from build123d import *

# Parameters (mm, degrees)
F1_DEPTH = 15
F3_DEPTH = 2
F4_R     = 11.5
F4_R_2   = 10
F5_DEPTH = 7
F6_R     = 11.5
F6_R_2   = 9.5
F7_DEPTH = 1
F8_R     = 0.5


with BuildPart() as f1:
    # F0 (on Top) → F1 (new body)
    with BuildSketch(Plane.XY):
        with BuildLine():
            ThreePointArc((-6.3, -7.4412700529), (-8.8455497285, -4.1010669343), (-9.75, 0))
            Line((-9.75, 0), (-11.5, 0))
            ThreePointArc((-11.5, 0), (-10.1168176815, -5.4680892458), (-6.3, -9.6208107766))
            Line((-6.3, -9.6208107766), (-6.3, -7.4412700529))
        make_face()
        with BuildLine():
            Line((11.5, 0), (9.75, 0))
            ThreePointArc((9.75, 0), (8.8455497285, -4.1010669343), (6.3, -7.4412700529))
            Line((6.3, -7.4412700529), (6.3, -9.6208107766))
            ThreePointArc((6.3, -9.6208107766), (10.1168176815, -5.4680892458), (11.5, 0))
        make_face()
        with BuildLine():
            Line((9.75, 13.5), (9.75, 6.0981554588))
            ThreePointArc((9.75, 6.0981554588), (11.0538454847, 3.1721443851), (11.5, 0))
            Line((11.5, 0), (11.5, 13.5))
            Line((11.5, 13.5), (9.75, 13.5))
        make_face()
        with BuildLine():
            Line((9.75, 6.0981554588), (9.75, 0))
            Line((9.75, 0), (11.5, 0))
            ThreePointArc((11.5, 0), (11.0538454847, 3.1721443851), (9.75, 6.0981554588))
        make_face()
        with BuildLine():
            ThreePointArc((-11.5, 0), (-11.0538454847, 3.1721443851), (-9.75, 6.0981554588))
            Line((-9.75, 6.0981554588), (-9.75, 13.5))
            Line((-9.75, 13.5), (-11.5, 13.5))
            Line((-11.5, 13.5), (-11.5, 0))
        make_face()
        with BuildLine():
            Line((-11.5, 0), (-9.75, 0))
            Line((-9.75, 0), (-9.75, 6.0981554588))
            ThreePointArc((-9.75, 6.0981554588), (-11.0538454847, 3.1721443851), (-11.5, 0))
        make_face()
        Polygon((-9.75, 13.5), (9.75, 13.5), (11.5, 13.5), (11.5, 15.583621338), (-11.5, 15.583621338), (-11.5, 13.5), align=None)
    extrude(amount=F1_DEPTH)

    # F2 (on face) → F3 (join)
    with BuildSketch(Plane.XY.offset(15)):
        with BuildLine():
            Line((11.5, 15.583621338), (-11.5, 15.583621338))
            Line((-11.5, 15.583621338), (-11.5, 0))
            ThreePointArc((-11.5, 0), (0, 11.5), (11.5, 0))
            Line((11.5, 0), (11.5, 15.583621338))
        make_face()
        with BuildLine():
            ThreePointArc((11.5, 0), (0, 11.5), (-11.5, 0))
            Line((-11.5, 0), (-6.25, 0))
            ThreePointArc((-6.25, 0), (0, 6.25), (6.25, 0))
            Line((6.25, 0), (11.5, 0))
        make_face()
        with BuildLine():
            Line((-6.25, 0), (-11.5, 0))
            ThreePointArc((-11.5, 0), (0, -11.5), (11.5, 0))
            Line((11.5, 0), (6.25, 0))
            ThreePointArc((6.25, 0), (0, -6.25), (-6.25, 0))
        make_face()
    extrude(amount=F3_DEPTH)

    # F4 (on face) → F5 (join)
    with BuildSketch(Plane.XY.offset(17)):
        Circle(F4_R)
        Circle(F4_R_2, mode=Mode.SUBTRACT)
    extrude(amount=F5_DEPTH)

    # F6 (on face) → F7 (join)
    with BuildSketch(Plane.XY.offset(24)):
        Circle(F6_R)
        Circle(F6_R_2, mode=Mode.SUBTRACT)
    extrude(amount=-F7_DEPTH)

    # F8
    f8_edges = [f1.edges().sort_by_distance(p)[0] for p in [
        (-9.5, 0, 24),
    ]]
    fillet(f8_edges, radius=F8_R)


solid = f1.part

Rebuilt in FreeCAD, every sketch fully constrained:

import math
import FreeCAD as App
import Part
import Sketcher


def edges_at(feature, points):
    """Names of the edges that pass closest to the given points."""
    edges = feature.Shape.Edges
    near = lambda p: min(range(len(edges)), key=lambda i: edges[i].distToShape(Part.Vertex(*p))[0])
    return sorted({f"Edge{near(p) + 1}" for p in points})

doc = App.newDocument("Part")
body = doc.addObject("PartDesign::Body", "Body")

# Sketch on XY plane
sketch1 = doc.addObject("Sketcher::SketchObject", "Sketch")
body.addObject(sketch1)
sketch1.AttachmentSupport = (doc.XY_Plane, [""])
sketch1.MapMode = "FlatFace"
sketch1.addGeometry([
    Part.ArcOfCircle(Part.Circle(App.Vector(0, 0, 0), App.Vector(0, 0, 1), 9.8), math.radians(180), math.radians(230)),  # 0
    Part.LineSegment(App.Vector(-9.8, 0, 0), App.Vector(-9.8, 13.5, 0)),  # 1
    Part.LineSegment(App.Vector(-9.8, 13.5, 0), App.Vector(9.8, 13.5, 0)),  # 2
    Part.LineSegment(App.Vector(9.8, 13.5, 0), App.Vector(9.8, 0, 0)),  # 3
    Part.ArcOfCircle(Part.Circle(App.Vector(0, 0, 0), App.Vector(0, 0, 1), 9.8), math.radians(-50), math.radians(0)),  # 4
    Part.LineSegment(App.Vector(6.3, -7.4, 0), App.Vector(6.3, -9.6, 0)),  # 5
    Part.ArcOfCircle(Part.Circle(App.Vector(0, 0, 0), App.Vector(0, 0, 1), 11.5), math.radians(-57), math.radians(0)),  # 6
    Part.LineSegment(App.Vector(11.5, 0, 0), App.Vector(11.5, 15.6, 0)),  # 7
    Part.LineSegment(App.Vector(11.5, 15.6, 0), App.Vector(-11.5, 15.6, 0)),  # 8
    Part.LineSegment(App.Vector(-11.5, 15.6, 0), App.Vector(-11.5, 0, 0)),  # 9
    Part.ArcOfCircle(Part.Circle(App.Vector(0, 0, 0), App.Vector(0, 0, 1), 11.5), math.radians(180), math.radians(237)),  # 10
    Part.LineSegment(App.Vector(-6.3, -9.6, 0), App.Vector(-6.3, -7.4, 0)),  # 11
], False)
sketch1.addConstraint([
    Sketcher.Constraint("Tangent", 0, 1, 1, 1),
    Sketcher.Constraint("Coincident", 1, 2, 2, 1),
    Sketcher.Constraint("Coincident", 2, 2, 3, 1),
    Sketcher.Constraint("Tangent", 3, 2, 4, 2),
    Sketcher.Constraint("Coincident", 4, 1, 5, 1),
    Sketcher.Constraint("Coincident", 5, 2, 6, 1),
    Sketcher.Constraint("Tangent", 6, 2, 7, 1),
    Sketcher.Constraint("Coincident", 7, 2, 8, 1),
    Sketcher.Constraint("Coincident", 8, 2, 9, 1),
    Sketcher.Constraint("Tangent", 9, 2, 10, 1),
    Sketcher.Constraint("Coincident", 10, 2, 11, 1),
    Sketcher.Constraint("Coincident", 11, 2, 0, 2),
    Sketcher.Constraint("Vertical", 1),
    Sketcher.Constraint("Horizontal", 2),
    Sketcher.Constraint("Vertical", 3),
    Sketcher.Constraint("Vertical", 5),
    Sketcher.Constraint("Vertical", 7),
    Sketcher.Constraint("Horizontal", 8),
    Sketcher.Constraint("Vertical", 9),
    Sketcher.Constraint("Vertical", 11),
    Sketcher.Constraint("Coincident", 0, 3, -1, 1),
    Sketcher.Constraint("Coincident", 4, 3, -1, 1),
    Sketcher.Constraint("Coincident", 6, 3, -1, 1),
    Sketcher.Constraint("Coincident", 10, 3, -1, 1),
    Sketcher.Constraint("Equal", 0, 4),
    Sketcher.Constraint("Equal", 6, 10),
    Sketcher.Constraint("Horizontal", 5, 2, 10, 2),
    Sketcher.Constraint("Radius", 6, 11.5),
    Sketcher.Constraint("Radius", 0, 9.75),
    Sketcher.Constraint("DistanceY", 1, 1, 1, 2, 13.5),
    Sketcher.Constraint("DistanceX", -1, 1, 4, 1, 6.3),
    Sketcher.Constraint("DistanceY", 7, 1, 7, 2, 15.583621),
])
pad1 = doc.addObject("PartDesign::Pad", "Pad")
body.addObject(pad1)
pad1.Profile = sketch1
pad1.Length = 15

# Sketch on XY plane
sketch2 = doc.addObject("Sketcher::SketchObject", "Sketch001")
body.addObject(sketch2)
sketch2.AttachmentSupport = (doc.XY_Plane, [""])
sketch2.MapMode = "FlatFace"
sketch2.AttachmentOffset = App.Placement(App.Vector(0, 0, 15), App.Rotation())
sketch2.addGeometry([
    Part.LineSegment(App.Vector(12, 16, 0), App.Vector(-12, 16, 0)),  # 0
    Part.LineSegment(App.Vector(-12, 16, 0), App.Vector(-12, 0, 0)),  # 1
    Part.ArcOfCircle(Part.Circle(App.Vector(0, 0, 0), App.Vector(0, 0, 1), 12), math.radians(180), math.radians(360)),  # 2
    Part.LineSegment(App.Vector(12, 0, 0), App.Vector(12, 16, 0)),  # 3
    Part.Circle(App.Vector(0, 0, 0), App.Vector(0, 0, 1), 6),  # 4
], False)
sketch2.addConstraint([
    Sketcher.Constraint("Coincident", 0, 2, 1, 1),
    Sketcher.Constraint("Tangent", 1, 2, 2, 1),
    Sketcher.Constraint("Tangent", 2, 2, 3, 1),
    Sketcher.Constraint("Coincident", 3, 2, 0, 1),
    Sketcher.Constraint("Horizontal", 0),
    Sketcher.Constraint("Vertical", 1),
    Sketcher.Constraint("Vertical", 3),
    Sketcher.Constraint("Coincident", 2, 3, -1, 1),
    Sketcher.Constraint("Coincident", 4, 3, -1, 1),
    Sketcher.Constraint("Diameter", 4, 12.5),
    Sketcher.Constraint("Radius", 2, 11.5),
    Sketcher.Constraint("DistanceY", 1, 2, 1, 1, 15.583621),
])
pad2 = doc.addObject("PartDesign::Pad", "Pad001")
body.addObject(pad2)
pad2.Profile = sketch2
pad2.Length = 2

# Sketch on XY plane
sketch3 = doc.addObject("Sketcher::SketchObject", "Sketch002")
body.addObject(sketch3)
sketch3.AttachmentSupport = (doc.XY_Plane, [""])
sketch3.MapMode = "FlatFace"
sketch3.AttachmentOffset = App.Placement(App.Vector(0, 0, 17), App.Rotation())
sketch3.addGeometry([
    Part.Circle(App.Vector(0, 0, 0), App.Vector(0, 0, 1), 12),
    Part.Circle(App.Vector(0, 0, 0), App.Vector(0, 0, 1), 10),
], False)
sketch3.addConstraint([
    Sketcher.Constraint("Coincident", 0, 3, -1, 1),
    Sketcher.Constraint("Coincident", 1, 3, -1, 1),
    Sketcher.Constraint("Diameter", 0, 23.0),
    Sketcher.Constraint("Diameter", 1, 20.0),
])
pad3 = doc.addObject("PartDesign::Pad", "Pad002")
body.addObject(pad3)
pad3.Profile = sketch3
pad3.Length = 7

# Sketch on XY plane
sketch4 = doc.addObject("Sketcher::SketchObject", "Sketch003")
body.addObject(sketch4)
sketch4.AttachmentSupport = (doc.XY_Plane, [""])
sketch4.MapMode = "FlatFace"
sketch4.AttachmentOffset = App.Placement(App.Vector(0, 0, 24), App.Rotation())
sketch4.addGeometry([
    Part.Circle(App.Vector(0, 0, 0), App.Vector(0, 0, 1), 12),
    Part.Circle(App.Vector(0, 0, 0), App.Vector(0, 0, 1), 10),
], False)
sketch4.addConstraint([
    Sketcher.Constraint("Coincident", 0, 3, -1, 1),
    Sketcher.Constraint("Coincident", 1, 3, -1, 1),
    Sketcher.Constraint("Diameter", 0, 23.0),
    Sketcher.Constraint("Diameter", 1, 19.0),
])
pad4 = doc.addObject("PartDesign::Pad", "Pad003")
body.addObject(pad4)
pad4.Profile = sketch4
pad4.Length = 1
pad4.Reversed = True
doc.recompute()

fillet = doc.addObject("PartDesign::Fillet", "Fillet")
body.addObject(fillet)
fillet.Base = (pad4, edges_at(pad4, [(-9.5, 0, 24)]))
fillet.Radius = 0.5

doc.recompute()
